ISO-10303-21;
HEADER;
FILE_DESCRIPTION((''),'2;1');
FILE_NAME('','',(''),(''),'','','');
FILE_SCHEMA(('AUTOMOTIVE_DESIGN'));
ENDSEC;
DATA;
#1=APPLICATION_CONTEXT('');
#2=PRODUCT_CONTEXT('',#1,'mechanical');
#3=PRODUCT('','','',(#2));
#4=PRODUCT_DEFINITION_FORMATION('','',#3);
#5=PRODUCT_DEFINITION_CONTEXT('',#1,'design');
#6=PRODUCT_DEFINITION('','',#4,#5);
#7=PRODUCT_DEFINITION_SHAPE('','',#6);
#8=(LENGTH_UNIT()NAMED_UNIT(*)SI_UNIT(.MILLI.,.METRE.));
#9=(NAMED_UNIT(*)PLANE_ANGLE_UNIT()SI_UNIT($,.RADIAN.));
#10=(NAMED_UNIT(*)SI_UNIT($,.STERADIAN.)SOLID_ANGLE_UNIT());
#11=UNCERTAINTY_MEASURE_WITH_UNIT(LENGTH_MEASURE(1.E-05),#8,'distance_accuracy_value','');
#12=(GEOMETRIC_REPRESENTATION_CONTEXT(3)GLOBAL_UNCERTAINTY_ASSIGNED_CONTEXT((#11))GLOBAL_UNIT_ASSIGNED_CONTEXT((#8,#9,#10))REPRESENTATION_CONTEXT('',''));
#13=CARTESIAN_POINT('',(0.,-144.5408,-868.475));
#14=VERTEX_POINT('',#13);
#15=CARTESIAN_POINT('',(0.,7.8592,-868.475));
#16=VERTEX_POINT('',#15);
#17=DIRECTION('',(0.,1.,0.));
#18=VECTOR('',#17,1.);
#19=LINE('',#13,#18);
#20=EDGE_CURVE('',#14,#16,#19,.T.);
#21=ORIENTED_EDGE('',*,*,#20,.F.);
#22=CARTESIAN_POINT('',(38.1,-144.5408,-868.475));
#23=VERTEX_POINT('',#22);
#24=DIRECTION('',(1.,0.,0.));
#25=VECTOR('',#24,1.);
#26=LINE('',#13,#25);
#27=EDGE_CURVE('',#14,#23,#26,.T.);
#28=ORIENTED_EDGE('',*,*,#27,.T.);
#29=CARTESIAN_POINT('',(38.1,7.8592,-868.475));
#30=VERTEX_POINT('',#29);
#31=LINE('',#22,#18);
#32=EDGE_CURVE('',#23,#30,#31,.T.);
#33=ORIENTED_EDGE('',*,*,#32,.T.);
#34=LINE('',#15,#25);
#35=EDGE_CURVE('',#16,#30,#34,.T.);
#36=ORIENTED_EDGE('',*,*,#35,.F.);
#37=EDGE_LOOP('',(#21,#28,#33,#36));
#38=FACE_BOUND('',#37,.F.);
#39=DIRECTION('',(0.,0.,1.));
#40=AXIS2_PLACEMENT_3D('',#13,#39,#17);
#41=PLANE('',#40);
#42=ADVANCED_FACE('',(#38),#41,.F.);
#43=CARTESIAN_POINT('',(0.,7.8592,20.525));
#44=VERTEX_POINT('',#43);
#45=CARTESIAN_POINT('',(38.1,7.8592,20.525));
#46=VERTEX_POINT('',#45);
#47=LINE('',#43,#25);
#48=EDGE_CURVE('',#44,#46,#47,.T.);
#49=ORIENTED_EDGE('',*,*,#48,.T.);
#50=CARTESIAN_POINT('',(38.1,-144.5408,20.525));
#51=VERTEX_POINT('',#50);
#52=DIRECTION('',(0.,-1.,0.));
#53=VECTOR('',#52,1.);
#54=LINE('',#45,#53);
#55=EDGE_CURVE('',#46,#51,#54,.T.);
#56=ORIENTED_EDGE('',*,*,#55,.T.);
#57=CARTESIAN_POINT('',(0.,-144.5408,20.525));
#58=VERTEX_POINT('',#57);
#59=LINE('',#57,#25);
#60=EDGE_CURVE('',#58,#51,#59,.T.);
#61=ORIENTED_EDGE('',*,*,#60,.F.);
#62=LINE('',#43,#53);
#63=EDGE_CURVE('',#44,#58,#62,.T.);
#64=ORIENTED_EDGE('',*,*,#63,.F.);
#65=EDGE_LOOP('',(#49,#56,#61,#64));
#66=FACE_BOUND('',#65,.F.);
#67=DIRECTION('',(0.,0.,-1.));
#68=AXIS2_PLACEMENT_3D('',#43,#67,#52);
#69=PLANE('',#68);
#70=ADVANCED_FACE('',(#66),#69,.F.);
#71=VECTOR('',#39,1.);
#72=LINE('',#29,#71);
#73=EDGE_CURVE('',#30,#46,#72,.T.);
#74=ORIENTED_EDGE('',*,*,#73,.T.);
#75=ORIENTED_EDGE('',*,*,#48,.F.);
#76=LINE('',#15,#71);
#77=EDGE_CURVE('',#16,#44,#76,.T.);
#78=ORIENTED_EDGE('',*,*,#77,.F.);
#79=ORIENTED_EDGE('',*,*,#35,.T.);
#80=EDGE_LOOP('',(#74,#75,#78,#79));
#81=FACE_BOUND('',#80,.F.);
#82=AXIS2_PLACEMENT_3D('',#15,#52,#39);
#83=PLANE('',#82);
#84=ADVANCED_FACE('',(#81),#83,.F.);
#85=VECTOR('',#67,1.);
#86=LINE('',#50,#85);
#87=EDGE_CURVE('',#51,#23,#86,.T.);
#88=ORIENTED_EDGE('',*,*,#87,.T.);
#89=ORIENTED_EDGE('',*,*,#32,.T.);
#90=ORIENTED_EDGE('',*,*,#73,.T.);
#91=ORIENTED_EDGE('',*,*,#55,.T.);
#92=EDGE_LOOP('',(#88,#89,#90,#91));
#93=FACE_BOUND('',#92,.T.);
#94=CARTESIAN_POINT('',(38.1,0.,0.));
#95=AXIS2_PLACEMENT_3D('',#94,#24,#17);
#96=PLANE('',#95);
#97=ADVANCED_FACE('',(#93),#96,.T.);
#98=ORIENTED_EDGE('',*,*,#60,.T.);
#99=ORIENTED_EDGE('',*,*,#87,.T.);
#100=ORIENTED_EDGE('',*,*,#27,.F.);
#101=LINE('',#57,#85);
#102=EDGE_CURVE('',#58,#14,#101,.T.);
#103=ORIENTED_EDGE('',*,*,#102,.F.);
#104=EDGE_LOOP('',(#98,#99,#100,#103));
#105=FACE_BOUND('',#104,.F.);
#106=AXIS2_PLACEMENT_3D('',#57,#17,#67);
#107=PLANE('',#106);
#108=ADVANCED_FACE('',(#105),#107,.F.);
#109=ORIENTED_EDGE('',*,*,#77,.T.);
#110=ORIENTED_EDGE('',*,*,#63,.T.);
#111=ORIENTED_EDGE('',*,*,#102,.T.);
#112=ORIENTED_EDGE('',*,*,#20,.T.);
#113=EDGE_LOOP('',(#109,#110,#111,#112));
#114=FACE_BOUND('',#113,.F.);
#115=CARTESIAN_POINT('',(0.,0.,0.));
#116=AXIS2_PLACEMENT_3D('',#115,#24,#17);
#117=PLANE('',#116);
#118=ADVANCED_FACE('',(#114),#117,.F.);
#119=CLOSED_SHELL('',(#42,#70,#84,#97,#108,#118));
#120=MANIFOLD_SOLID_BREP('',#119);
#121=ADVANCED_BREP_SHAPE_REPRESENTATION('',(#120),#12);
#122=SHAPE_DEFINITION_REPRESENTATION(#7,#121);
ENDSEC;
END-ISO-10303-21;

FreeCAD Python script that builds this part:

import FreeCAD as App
import Part
import Sketcher
Q = App.Units.Quantity

doc = App.newDocument("Part")
body = doc.addObject("PartDesign::Body", "Body")

# Sketch on YZ plane
sketch1 = body.newObject("Sketcher::SketchObject", "Sketch")
sketch1.AttachmentSupport = (doc.getObject("YZ_Plane"), [""])
sketch1.MapMode = "FlatFace"
sketch1.addGeometry([
    Part.LineSegment(App.Vector(8, -868, 0), App.Vector(8, 21, 0)),
    Part.LineSegment(App.Vector(8, 21, 0), App.Vector(-145, 21, 0)),
    Part.LineSegment(App.Vector(-145, 21, 0), App.Vector(-145, -868, 0)),
    Part.LineSegment(App.Vector(-145, -868, 0), App.Vector(8, -868, 0)),
], False)
sketch1.addConstraint([
    Sketcher.Constraint("Coincident", 0, 2, 1, 1),
    Sketcher.Constraint("Coincident", 1, 2, 2, 1),
    Sketcher.Constraint("Coincident", 2, 2, 3, 1),
    Sketcher.Constraint("Coincident", 3, 2, 0, 1),
    Sketcher.Constraint("Vertical", 0),
    Sketcher.Constraint("Horizontal", 1),
    Sketcher.Constraint("Vertical", 2),
    Sketcher.Constraint("Horizontal", 3),
    Sketcher.Constraint("DistanceX", 1, 2, 1, 1, Q("6 in")),
    Sketcher.Constraint("DistanceY", 0, 1, 0, 2, Q("35 in")),
    Sketcher.Constraint("DistanceX", -1, 1, 0, 2, Q("7.8592 mm")),
    Sketcher.Constraint("DistanceY", -1, 1, 0, 2, Q("20.525 mm")),
])
pad1 = body.newObject("PartDesign::Pad", "Pad")
pad1.Profile = sketch1
pad1.Length = Q("1.5 in")

doc.recompute()
